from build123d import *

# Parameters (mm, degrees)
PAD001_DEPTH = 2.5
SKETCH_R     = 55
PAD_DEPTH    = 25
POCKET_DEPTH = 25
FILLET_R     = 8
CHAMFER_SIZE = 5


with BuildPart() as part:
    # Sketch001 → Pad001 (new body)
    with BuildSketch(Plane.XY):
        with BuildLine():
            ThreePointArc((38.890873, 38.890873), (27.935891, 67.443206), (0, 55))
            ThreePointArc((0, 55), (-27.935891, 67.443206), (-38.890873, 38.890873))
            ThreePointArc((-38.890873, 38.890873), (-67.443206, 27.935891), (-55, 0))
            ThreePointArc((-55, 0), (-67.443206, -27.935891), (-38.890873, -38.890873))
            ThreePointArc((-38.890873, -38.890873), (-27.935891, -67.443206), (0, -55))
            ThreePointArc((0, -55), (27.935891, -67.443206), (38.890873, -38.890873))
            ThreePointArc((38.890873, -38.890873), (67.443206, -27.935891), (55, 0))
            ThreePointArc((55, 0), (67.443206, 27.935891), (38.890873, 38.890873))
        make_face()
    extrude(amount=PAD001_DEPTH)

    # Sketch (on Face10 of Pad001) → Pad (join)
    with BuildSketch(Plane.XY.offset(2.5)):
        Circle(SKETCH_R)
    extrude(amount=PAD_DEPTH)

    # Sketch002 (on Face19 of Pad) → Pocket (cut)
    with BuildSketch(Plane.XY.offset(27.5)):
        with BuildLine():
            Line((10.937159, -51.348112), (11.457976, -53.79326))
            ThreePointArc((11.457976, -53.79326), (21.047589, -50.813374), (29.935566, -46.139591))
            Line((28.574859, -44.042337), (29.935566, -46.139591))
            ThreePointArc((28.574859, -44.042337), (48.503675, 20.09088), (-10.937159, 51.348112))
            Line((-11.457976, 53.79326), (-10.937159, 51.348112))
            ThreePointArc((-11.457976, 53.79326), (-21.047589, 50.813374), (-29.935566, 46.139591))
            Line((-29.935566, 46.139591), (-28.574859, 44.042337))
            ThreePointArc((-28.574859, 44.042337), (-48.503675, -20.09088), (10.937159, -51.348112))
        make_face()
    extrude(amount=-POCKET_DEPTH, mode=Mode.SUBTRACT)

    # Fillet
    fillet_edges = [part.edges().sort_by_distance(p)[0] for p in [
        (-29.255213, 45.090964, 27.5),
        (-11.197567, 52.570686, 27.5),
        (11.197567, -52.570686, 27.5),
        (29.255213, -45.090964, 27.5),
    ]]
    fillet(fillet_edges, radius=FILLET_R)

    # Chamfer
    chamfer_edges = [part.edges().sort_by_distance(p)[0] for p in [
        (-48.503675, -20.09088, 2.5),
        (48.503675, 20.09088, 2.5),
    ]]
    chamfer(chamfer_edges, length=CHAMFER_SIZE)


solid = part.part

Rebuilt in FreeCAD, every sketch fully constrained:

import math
import FreeCAD as App
import Part
import Sketcher
from FreeCAD import Vector


def edges_at(feature, points):
    """Names of the edges that pass closest to the given points."""
    edges = feature.Shape.Edges
    near = lambda p: min(range(len(edges)), key=lambda i: edges[i].distToShape(Part.Vertex(*p))[0])
    return sorted({f"Edge{near(p) + 1}" for p in points})

doc = App.newDocument("Part")
body = doc.addObject("PartDesign::Body", "Body")

sketch1 = body.newObject("Sketcher::SketchObject", "Sketch")
sketch1.AttachmentSupport = (doc.getObject("XY_Plane"), [""])
sketch1.MapMode = "FlatFace"
sketch1.addGeometry(Part.ArcOfCircle(Part.Circle(Vector(20, 48, 0), Vector(0, 0, 1), 21), math.radians(-26), math.radians(161)), False)
sketch1.addGeometry(Part.ArcOfCircle(Part.Circle(Vector(-20, 48, 0), Vector(0, 0, 1), 21), math.radians(19), math.radians(206)), False)
sketch1.addGeometry(Part.ArcOfCircle(Part.Circle(Vector(-48, 20, 0), Vector(0, 0, 1), 21), math.radians(64), math.radians(251)), False)
sketch1.addGeometry(Part.ArcOfCircle(Part.Circle(Vector(-48, -20, 0), Vector(0, 0, 1), 21), math.radians(109), math.radians(296)), False)
sketch1.addGeometry(Part.ArcOfCircle(Part.Circle(Vector(-20, -48, 0), Vector(0, 0, 1), 21), math.radians(154), math.radians(341)), False)
sketch1.addGeometry(Part.ArcOfCircle(Part.Circle(Vector(20, -48, 0), Vector(0, 0, 1), 21), math.radians(-161), math.radians(26)), False)
sketch1.addGeometry(Part.ArcOfCircle(Part.Circle(Vector(48, -20, 0), Vector(0, 0, 1), 21), math.radians(-116), math.radians(71)), False)
sketch1.addGeometry(Part.ArcOfCircle(Part.Circle(Vector(48, 20, 0), Vector(0, 0, 1), 21), math.radians(-71), math.radians(116)), False)
sketch1.addConstraint(Sketcher.Constraint("Coincident", 0, 2, 1, 1))
sketch1.addConstraint(Sketcher.Constraint("Coincident", 1, 2, 2, 1))
sketch1.addConstraint(Sketcher.Constraint("Coincident", 2, 2, 3, 1))
sketch1.addConstraint(Sketcher.Constraint("Coincident", 3, 2, 4, 1))
sketch1.addConstraint(Sketcher.Constraint("Coincident", 4, 2, 5, 1))
sketch1.addConstraint(Sketcher.Constraint("Coincident", 5, 2, 6, 1))
sketch1.addConstraint(Sketcher.Constraint("Coincident", 6, 2, 7, 1))
sketch1.addConstraint(Sketcher.Constraint("Coincident", 7, 2, 0, 1))
sketch1.addConstraint(Sketcher.Constraint("Equal", 0, 1))
sketch1.addConstraint(Sketcher.Constraint("Equal", 1, 2))
sketch1.addConstraint(Sketcher.Constraint("Equal", 2, 3))
sketch1.addConstraint(Sketcher.Constraint("Equal", 3, 4))
sketch1.addConstraint(Sketcher.Constraint("Equal", 4, 5))
sketch1.addConstraint(Sketcher.Constraint("Equal", 5, 6))
sketch1.addConstraint(Sketcher.Constraint("Equal", 6, 7))
sketch1.addConstraint(Sketcher.Constraint("Symmetric", 0, 3, 4, 3, -1, 1))
sketch1.addConstraint(Sketcher.Constraint("Symmetric", 1, 3, 5, 3, -1, 1))
sketch1.addConstraint(Sketcher.Constraint("Symmetric", 2, 3, 6, 3, -1, 1))
sketch1.addConstraint(Sketcher.Constraint("Symmetric", 3, 3, 7, 3, -1, 1))
sketch1.addConstraint(Sketcher.Constraint("Symmetric", 0, 3, 1, 3, -2))
sketch1.addConstraint(Sketcher.Constraint("Symmetric", 3, 3, 6, 3, -2))
sketch1.addConstraint(Sketcher.Constraint("DistanceY", -1, 1, 0, 2, 55.0))
sketch1.addConstraint(Sketcher.Constraint("DistanceX", 2, 2, -1, 1, 55.0))
sketch1.addConstraint(Sketcher.Constraint("Radius", 0, 21.076827))
sketch1.addConstraint(Sketcher.Constraint("DistanceX", -1, 1, 0, 3, 19.870138))
sketch1.addConstraint(Sketcher.Constraint("DistanceY", -1, 1, 2, 3, 19.870138))
pad1 = body.newObject("PartDesign::Pad", "Pad")
pad1.Profile = sketch1
pad1.Length = 2.5

sketch2 = body.newObject("Sketcher::SketchObject", "Sketch001")
sketch2.AttachmentSupport = (doc.getObject("XY_Plane"), [""])
sketch2.MapMode = "FlatFace"
sketch2.AttachmentOffset = App.Placement(Vector(0, 0, 2.5), App.Rotation())
sketch2.addGeometry(Part.Circle(Vector(0, 0, 0), Vector(0, 0, 1), 55), False)
sketch2.addConstraint(Sketcher.Constraint("Coincident", 0, 3, -1, 1))
sketch2.addConstraint(Sketcher.Constraint("Diameter", 0, 110.0))
pad2 = body.newObject("PartDesign::Pad", "Pad001")
pad2.Profile = sketch2
pad2.Length = 25

sketch3 = body.newObject("Sketcher::SketchObject", "Sketch002")
sketch3.AttachmentSupport = (doc.getObject("XY_Plane"), [""])
sketch3.MapMode = "FlatFace"
sketch3.AttachmentOffset = App.Placement(Vector(0, 0, 27.5), App.Rotation())
sketch3.addGeometry(Part.LineSegment(Vector(10.937159, -51.348112, 0), Vector(11.457976, -53.79326, 0)), False)
sketch3.addGeometry(Part.ArcOfCircle(Part.Circle(Vector(-0.000006, 0.000011, 0), Vector(0, 0, 1), 55.000012), math.radians(-77.975677), math.radians(-57.024319)), False)
sketch3.addGeometry(Part.LineSegment(Vector(29.935566, -46.139591, 0), Vector(28.574859, -44.042337, 0)), False)
sketch3.addGeometry(Part.ArcOfCircle(Part.Circle(Vector(-0.000001, 0, 0), Vector(0, 0, 1), 52.500001), math.radians(-57.024317), math.radians(102.024317)), False)
sketch3.addGeometry(Part.LineSegment(Vector(-10.937159, 51.348112, 0), Vector(-11.457976, 53.79326, 0)), False)
sketch3.addGeometry(Part.ArcOfCircle(Part.Circle(Vector(0.000006, -0.000011, 0), Vector(0, 0, 1), 55.000012), math.radians(102.024323), math.radians(122.975681)), False)
sketch3.addGeometry(Part.LineSegment(Vector(-29.935566, 46.139591, 0), Vector(-28.574859, 44.042337, 0)), False)
sketch3.addGeometry(Part.ArcOfCircle(Part.Circle(Vector(0.000001, 0, 0), Vector(0, 0, 1), 52.500001), math.radians(122.975683), math.radians(282.024317)), False)
sketch3.addConstraint(Sketcher.Constraint("Coincident", 0, 2, 1, 1))
sketch3.addConstraint(Sketcher.Constraint("Coincident", 1, 2, 2, 1))
sketch3.addConstraint(Sketcher.Constraint("Coincident", 2, 2, 3, 1))
sketch3.addConstraint(Sketcher.Constraint("Coincident", 3, 2, 4, 1))
sketch3.addConstraint(Sketcher.Constraint("Coincident", 4, 2, 5, 1))
sketch3.addConstraint(Sketcher.Constraint("Coincident", 5, 2, 6, 1))
sketch3.addConstraint(Sketcher.Constraint("Coincident", 6, 2, 7, 1))
sketch3.addConstraint(Sketcher.Constraint("Coincident", 7, 2, 0, 1))
sketch3.addConstraint(Sketcher.Constraint("Coincident", 3, 3, -1, 1))
sketch3.addConstraint(Sketcher.Constraint("Coincident", 7, 3, -1, 1))
sketch3.addConstraint(Sketcher.Constraint("Equal", 1, 5))
sketch3.addConstraint(Sketcher.Constraint("Equal", 3, 7))
sketch3.addConstraint(Sketcher.Constraint("Symmetric", 1, 3, 5, 3, -1, 1))
sketch3.addConstraint(Sketcher.Constraint("Parallel", 0, 4))
sketch3.addConstraint(Sketcher.Constraint("Parallel", 2, 6))
sketch3.addConstraint(Sketcher.Constraint("Equal", 0, 2))
sketch3.addConstraint(Sketcher.Constraint("Radius", 3, 52.500001))
sketch3.addConstraint(Sketcher.Constraint("Distance", 0, 2.5))
sketch3.addConstraint(Sketcher.Constraint("Radius", 1, 55.000012))
sketch3.addConstraint(Sketcher.Constraint("DistanceY", 1, 2, 1, 3, 46.139602))
sketch3.addConstraint(Sketcher.Constraint("DistanceY", 1, 3, 3, 2, 51.348101))
sketch3.addConstraint(Sketcher.Constraint("DistanceX", 6, 2, 3, 2, 17.6377))
sketch3.addConstraint(Sketcher.Constraint("DistanceX", 7, 2, 2, 2, 17.6377))
sketch3.addConstraint(Sketcher.Constraint("DistanceY", 7, 2, 5, 3, 51.348101))
sketch3.addConstraint(Sketcher.Constraint("DistanceY", 0, 2, -1, 1, 53.79326))
pocket1 = body.newObject("PartDesign::Pocket", "Pocket")
pocket1.Profile = sketch3
pocket1.Length = 25
doc.recompute()

fillet = body.newObject("PartDesign::Fillet", "Fillet")
fillet.Base = (pocket1, edges_at(pocket1, [
    (-29.255, 45.091, 27.5),
    (-11.198, 52.571, 27.5),
    (11.198, -52.571, 27.5),
    (29.255, -45.091, 27.5),
]))
fillet.Radius = 8
doc.recompute()

chamfer = body.newObject("PartDesign::Chamfer", "Chamfer")
chamfer.Base = (fillet, edges_at(fillet, [(-48.504, -20.091, 2.5), (48.504, 20.091, 2.5)]))
chamfer.Size = 5

doc.recompute()
